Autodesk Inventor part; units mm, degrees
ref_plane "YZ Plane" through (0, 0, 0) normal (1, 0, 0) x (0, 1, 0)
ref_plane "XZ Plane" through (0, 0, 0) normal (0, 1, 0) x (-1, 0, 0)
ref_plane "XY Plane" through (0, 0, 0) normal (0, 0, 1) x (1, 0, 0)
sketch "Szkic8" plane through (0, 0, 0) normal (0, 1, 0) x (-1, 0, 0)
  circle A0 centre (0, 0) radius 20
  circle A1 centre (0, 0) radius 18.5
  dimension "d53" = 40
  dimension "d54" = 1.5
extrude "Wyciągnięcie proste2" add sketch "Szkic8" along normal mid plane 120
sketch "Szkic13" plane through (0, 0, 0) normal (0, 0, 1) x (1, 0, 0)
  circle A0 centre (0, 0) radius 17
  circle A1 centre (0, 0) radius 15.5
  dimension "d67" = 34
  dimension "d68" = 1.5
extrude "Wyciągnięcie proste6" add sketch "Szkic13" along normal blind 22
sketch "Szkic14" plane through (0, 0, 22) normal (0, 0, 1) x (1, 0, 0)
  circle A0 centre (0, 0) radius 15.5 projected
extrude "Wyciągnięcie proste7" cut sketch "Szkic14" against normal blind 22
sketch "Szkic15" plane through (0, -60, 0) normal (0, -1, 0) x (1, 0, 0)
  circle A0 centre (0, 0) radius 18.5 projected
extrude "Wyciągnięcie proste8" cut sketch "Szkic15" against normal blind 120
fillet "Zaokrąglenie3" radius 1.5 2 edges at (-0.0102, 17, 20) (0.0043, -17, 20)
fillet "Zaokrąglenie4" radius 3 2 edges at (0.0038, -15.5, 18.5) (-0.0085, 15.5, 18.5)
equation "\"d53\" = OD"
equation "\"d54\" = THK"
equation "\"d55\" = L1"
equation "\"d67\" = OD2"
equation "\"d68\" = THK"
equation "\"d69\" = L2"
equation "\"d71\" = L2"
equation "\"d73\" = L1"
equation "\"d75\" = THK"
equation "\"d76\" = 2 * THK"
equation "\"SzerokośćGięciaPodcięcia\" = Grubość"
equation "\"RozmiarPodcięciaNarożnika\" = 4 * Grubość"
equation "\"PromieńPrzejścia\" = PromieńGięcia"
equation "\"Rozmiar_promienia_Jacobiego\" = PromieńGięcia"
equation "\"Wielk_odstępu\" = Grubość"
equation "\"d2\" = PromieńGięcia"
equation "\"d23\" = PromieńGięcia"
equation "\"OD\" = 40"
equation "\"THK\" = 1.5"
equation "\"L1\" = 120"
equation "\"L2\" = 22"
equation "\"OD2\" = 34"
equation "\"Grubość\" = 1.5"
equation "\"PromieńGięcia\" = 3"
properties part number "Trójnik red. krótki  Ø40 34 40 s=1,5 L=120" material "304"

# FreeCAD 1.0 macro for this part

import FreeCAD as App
import Part
import Sketcher
from FreeCAD import Vector


def edges_at(feature, points):
    """Names of the edges that pass closest to the given points."""
    edges = feature.Shape.Edges
    near = lambda p: min(range(len(edges)), key=lambda i: edges[i].distToShape(Part.Vertex(*p))[0])
    return sorted({f"Edge{near(p) + 1}" for p in points})

doc = App.newDocument("Part")
body = doc.addObject("PartDesign::Body", "Body")

sketch1 = body.newObject("Sketcher::SketchObject", "Sketch")
sketch1.AttachmentSupport = (doc.getObject("XZ_Plane"), [""])
sketch1.MapMode = "FlatFace"
sketch1.addGeometry([
    Part.Circle(Vector(0, 0, 0), Vector(0, 0, 1), 20),
    Part.Circle(Vector(0, 0, 0), Vector(0, 0, 1), 18),
], False)
sketch1.addConstraint([
    Sketcher.Constraint("Coincident", 0, 3, -1, 1),
    Sketcher.Constraint("Coincident", 1, 3, -1, 1),
    Sketcher.Constraint("Diameter", 0, 40.0),
    Sketcher.Constraint("Diameter", 1, 37.0),
])
pad1 = body.newObject("PartDesign::Pad", "Pad")
pad1.Profile = sketch1
pad1.Length = 120
pad1.Midplane = True

sketch2 = body.newObject("Sketcher::SketchObject", "Sketch001")
sketch2.AttachmentSupport = (doc.getObject("XY_Plane"), [""])
sketch2.MapMode = "FlatFace"
sketch2.addGeometry([
    Part.Circle(Vector(0, 0, 0), Vector(0, 0, 1), 17),
    Part.Circle(Vector(0, 0, 0), Vector(0, 0, 1), 16),
], False)
sketch2.addConstraint([
    Sketcher.Constraint("Coincident", 0, 3, -1, 1),
    Sketcher.Constraint("Coincident", 1, 3, -1, 1),
    Sketcher.Constraint("Diameter", 0, 34.0),
    Sketcher.Constraint("Diameter", 1, 31.0),
])
pad2 = body.newObject("PartDesign::Pad", "Pad001")
pad2.Profile = sketch2
pad2.Length = 22

sketch3 = body.newObject("Sketcher::SketchObject", "Sketch002")
sketch3.AttachmentSupport = (doc.getObject("XY_Plane"), [""])
sketch3.MapMode = "FlatFace"
sketch3.AttachmentOffset = App.Placement(Vector(0, 0, 22), App.Rotation())
sketch3.addGeometry(Part.Circle(Vector(0, 0, 0), Vector(0, 0, 1), 16), False)
sketch3.addConstraint([
    Sketcher.Constraint("Coincident", 0, 3, -1, 1),
    Sketcher.Constraint("Diameter", 0, 31.0),
])
pocket1 = body.newObject("PartDesign::Pocket", "Pocket")
pocket1.Profile = sketch3
pocket1.Length = 22

sketch4 = body.newObject("Sketcher::SketchObject", "Sketch003")
sketch4.AttachmentSupport = (doc.getObject("XZ_Plane"), [""])
sketch4.MapMode = "FlatFace"
sketch4.AttachmentOffset = App.Placement(Vector(0, 0, 60), App.Rotation())
sketch4.addGeometry(Part.Circle(Vector(0, 0, 0), Vector(0, 0, 1), 18), False)
sketch4.addConstraint([
    Sketcher.Constraint("Coincident", 0, 3, -1, 1),
    Sketcher.Constraint("Diameter", 0, 37.0),
])
pocket2 = body.newObject("PartDesign::Pocket", "Pocket001")
pocket2.Profile = sketch4
pocket2.Length = 120
doc.recompute()

fillet = body.newObject("PartDesign::Fillet", "Fillet")
fillet.Base = (pocket2, edges_at(pocket2, [(-0.01, 17, 20), (0.004, -17, 20)]))
fillet.Radius = 1.5
doc.recompute()

fillet2 = body.newObject("PartDesign::Fillet", "Fillet001")
fillet2.Base = (fillet, edges_at(fillet, [(0.004, -15.5, 18.5), (-0.009, 15.5, 18.5)]))
fillet2.Radius = 3

doc.recompute()
